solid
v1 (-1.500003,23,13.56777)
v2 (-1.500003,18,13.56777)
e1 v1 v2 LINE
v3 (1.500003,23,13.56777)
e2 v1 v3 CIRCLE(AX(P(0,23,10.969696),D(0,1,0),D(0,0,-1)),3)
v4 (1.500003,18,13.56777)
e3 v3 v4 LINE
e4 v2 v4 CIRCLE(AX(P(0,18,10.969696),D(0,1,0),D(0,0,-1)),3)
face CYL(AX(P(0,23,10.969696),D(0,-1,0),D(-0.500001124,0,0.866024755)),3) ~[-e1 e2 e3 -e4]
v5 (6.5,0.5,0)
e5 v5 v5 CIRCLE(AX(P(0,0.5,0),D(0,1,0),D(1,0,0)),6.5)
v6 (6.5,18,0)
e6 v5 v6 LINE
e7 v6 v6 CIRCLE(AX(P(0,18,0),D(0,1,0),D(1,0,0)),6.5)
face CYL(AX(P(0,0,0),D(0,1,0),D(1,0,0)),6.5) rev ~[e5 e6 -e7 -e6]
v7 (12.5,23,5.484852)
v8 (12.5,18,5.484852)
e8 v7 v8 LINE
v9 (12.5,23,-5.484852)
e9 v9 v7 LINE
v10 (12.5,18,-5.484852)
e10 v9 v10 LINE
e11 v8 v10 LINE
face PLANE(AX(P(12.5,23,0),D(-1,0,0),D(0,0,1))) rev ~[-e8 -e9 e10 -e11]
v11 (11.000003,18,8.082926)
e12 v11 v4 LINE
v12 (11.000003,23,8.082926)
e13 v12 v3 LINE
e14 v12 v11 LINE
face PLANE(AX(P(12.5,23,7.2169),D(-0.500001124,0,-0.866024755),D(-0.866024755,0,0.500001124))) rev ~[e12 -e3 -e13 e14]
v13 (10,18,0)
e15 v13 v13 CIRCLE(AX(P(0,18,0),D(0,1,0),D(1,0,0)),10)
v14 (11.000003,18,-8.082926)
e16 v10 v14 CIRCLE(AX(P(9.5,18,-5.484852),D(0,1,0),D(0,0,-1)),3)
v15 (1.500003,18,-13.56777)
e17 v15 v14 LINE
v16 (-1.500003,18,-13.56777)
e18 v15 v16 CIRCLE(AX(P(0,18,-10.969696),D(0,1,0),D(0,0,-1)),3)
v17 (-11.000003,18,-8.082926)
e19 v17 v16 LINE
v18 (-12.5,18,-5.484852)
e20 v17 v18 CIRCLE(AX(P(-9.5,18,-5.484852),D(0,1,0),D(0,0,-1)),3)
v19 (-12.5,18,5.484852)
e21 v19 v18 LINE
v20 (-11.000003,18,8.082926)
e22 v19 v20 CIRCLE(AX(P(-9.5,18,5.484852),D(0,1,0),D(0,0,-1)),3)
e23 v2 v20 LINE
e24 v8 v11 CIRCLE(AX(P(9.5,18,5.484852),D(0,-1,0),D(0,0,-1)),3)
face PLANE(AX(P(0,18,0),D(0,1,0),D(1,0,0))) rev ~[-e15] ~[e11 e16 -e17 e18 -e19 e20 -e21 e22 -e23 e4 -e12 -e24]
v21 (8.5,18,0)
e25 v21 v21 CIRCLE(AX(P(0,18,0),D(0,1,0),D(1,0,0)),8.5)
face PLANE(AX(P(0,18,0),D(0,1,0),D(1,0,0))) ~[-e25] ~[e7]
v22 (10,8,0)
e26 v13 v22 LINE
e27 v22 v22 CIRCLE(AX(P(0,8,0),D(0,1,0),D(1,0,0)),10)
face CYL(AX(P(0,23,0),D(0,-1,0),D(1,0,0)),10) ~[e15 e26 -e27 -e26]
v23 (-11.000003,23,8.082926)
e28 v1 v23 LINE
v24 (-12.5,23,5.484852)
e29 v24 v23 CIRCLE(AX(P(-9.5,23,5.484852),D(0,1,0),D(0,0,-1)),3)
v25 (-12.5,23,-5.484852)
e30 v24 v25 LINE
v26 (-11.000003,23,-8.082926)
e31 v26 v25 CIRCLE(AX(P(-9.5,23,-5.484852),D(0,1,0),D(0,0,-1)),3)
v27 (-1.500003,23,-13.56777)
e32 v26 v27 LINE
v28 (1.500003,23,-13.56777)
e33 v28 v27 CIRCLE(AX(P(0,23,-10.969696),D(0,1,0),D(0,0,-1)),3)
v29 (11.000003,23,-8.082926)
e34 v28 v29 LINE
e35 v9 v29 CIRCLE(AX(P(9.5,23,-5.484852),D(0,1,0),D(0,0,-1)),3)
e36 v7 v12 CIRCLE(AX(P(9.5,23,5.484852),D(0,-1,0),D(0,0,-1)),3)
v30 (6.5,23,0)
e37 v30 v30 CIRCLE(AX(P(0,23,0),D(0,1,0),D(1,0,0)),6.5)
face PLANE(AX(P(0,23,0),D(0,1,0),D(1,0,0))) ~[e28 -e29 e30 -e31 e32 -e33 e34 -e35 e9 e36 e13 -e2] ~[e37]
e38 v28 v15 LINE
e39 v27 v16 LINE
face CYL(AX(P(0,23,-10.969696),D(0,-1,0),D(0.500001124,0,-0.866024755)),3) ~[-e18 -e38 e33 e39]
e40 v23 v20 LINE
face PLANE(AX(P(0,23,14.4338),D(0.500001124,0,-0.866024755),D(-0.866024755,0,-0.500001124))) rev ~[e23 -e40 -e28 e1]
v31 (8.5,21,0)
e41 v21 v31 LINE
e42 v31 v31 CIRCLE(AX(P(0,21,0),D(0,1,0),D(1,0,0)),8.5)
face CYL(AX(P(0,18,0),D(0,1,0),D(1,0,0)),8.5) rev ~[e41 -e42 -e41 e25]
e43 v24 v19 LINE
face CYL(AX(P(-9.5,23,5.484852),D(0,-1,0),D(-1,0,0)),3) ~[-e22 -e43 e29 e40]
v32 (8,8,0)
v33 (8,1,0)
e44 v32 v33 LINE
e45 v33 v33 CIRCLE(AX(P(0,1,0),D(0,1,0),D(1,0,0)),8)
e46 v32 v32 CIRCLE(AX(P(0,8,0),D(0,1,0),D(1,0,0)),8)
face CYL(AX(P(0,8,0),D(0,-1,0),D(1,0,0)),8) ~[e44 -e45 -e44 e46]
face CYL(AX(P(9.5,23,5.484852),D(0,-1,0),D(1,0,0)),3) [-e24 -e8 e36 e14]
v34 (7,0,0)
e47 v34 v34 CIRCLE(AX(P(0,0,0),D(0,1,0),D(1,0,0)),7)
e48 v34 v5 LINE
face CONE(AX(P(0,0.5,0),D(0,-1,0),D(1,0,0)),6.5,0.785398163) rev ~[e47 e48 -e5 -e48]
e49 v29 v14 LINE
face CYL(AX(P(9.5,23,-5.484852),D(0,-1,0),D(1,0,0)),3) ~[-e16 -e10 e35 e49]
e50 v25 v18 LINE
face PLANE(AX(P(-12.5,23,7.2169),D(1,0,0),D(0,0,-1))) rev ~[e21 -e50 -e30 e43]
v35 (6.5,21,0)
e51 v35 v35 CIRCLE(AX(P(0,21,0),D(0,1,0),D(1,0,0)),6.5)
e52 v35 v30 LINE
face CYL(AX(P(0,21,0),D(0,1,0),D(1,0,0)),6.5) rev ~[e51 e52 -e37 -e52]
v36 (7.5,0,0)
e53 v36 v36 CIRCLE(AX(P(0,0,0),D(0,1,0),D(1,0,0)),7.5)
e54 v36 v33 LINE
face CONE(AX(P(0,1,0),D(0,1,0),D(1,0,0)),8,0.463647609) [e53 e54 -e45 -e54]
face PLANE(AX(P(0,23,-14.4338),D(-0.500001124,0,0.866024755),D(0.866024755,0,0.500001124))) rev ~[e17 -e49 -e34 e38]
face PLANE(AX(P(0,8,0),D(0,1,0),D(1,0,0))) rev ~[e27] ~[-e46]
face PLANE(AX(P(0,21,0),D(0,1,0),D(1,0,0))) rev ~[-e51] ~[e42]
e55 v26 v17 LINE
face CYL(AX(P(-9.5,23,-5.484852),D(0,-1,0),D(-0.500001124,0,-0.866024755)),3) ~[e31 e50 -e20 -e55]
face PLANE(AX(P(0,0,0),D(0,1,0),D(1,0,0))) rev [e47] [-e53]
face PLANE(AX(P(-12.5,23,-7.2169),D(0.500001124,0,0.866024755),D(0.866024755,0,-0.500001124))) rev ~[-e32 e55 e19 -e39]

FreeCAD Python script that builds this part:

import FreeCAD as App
import Part
import Sketcher

V = App.Vector
Q = App.Units.Quantity


def edges_at(feature, points):
    """Names of the edges that pass closest to the given points."""
    edges = feature.Shape.Edges
    near = lambda p: min(range(len(edges)), key=lambda i: edges[i].distToShape(Part.Vertex(*p))[0])
    return sorted({f"Edge{near(p) + 1}" for p in points})

doc = App.newDocument("Part")
body = doc.addObject("PartDesign::Body", "Body")

sketch1 = body.newObject("Sketcher::SketchObject", "Sketch")
sketch1.AttachmentSupport = (doc.getObject("XY_Plane"), [""])
sketch1.MapMode = "FlatFace"
sketch1.addGeometry(Part.LineSegment(V(6.5, 18, 0), V(6.5, 0, 0)), False)
sketch1.addGeometry(Part.LineSegment(V(6.5, 0, 0), V(8, 0, 0)), False)
sketch1.addGeometry(Part.LineSegment(V(8, 0, 0), V(8, 8, 0)), False)
sketch1.addGeometry(Part.LineSegment(V(8, 8, 0), V(10, 8, 0)), False)
sketch1.addGeometry(Part.LineSegment(V(10, 8, 0), V(10, 23, 0)), False)
sketch1.addGeometry(Part.LineSegment(V(10, 23, 0), V(6.5, 23, 0)), False)
sketch1.addGeometry(Part.LineSegment(V(6.5, 23, 0), V(6.5, 21, 0)), False)
sketch1.addGeometry(Part.LineSegment(V(6.5, 21, 0), V(8.5, 21, 0)), False)
sketch1.addGeometry(Part.LineSegment(V(8.5, 21, 0), V(8.5, 18, 0)), False)
sketch1.addGeometry(Part.LineSegment(V(8.5, 18, 0), V(6.5, 18, 0)), False)
sketch1.addConstraint(Sketcher.Constraint("Coincident", 0, 2, 1, 1))
sketch1.addConstraint(Sketcher.Constraint("Coincident", 1, 2, 2, 1))
sketch1.addConstraint(Sketcher.Constraint("Coincident", 2, 2, 3, 1))
sketch1.addConstraint(Sketcher.Constraint("Coincident", 3, 2, 4, 1))
sketch1.addConstraint(Sketcher.Constraint("Coincident", 4, 2, 5, 1))
sketch1.addConstraint(Sketcher.Constraint("Coincident", 5, 2, 6, 1))
sketch1.addConstraint(Sketcher.Constraint("Coincident", 6, 2, 7, 1))
sketch1.addConstraint(Sketcher.Constraint("Coincident", 7, 2, 8, 1))
sketch1.addConstraint(Sketcher.Constraint("Coincident", 8, 2, 9, 1))
sketch1.addConstraint(Sketcher.Constraint("Coincident", 9, 2, 0, 1))
sketch1.addConstraint(Sketcher.Constraint("Vertical", 0))
sketch1.addConstraint(Sketcher.Constraint("Horizontal", 1))
sketch1.addConstraint(Sketcher.Constraint("Vertical", 2))
sketch1.addConstraint(Sketcher.Constraint("Horizontal", 3))
sketch1.addConstraint(Sketcher.Constraint("Vertical", 4))
sketch1.addConstraint(Sketcher.Constraint("Horizontal", 5))
sketch1.addConstraint(Sketcher.Constraint("Vertical", 6))
sketch1.addConstraint(Sketcher.Constraint("Horizontal", 7))
sketch1.addConstraint(Sketcher.Constraint("Vertical", 8))
sketch1.addConstraint(Sketcher.Constraint("Horizontal", 9))
sketch1.addConstraint(Sketcher.Constraint("PointOnObject", 0, 2, -1))
sketch1.addConstraint(Sketcher.Constraint("Vertical", 0, 2, 5, 2))
sketch1.addConstraint(Sketcher.Constraint("Equal", 3, 7))
sketch1.addConstraint(Sketcher.Constraint("Equal", 9, 6))
sketch1.addConstraint(Sketcher.Constraint("DistanceX", 3, 1, 3, 2, Q("2 mm")))
sketch1.addConstraint(Sketcher.Constraint("DistanceY", 2, 1, 2, 2, Q("8 mm")))
sketch1.addConstraint(Sketcher.Constraint("DistanceY", 8, 2, 8, 1, Q("3 mm")))
sketch1.addConstraint(Sketcher.Constraint("DistanceX", -1, 1, 1, 2, Q("8 mm")))
sketch1.addConstraint(Sketcher.Constraint("DistanceY", -1, 1, 4, 2, Q("23 mm")))
sketch1.addConstraint(Sketcher.Constraint("DistanceX", 1, 1, 1, 2, Q("1.5 mm")))
revolution = body.newObject("PartDesign::Revolution", "Revolution")
revolution.Profile = sketch1
revolution.ReferenceAxis = (sketch1, ["V_Axis"])
revolution.Angle = 360

sketch2 = body.newObject("Sketcher::SketchObject", "Sketch001")
sketch2.AttachmentSupport = (doc.getObject("XZ_Plane"), [""])
sketch2.MapMode = "FlatFace"
sketch2.AttachmentOffset = App.Placement(V(0, 0, -23), App.Rotation())
sketch2.addGeometry(Part.LineSegment(V(12, 7, 0), V(12, -7, 0)), False)
sketch2.addGeometry(Part.LineSegment(V(12, -7, 0), V(0, -14, 0)), False)
sketch2.addGeometry(Part.LineSegment(V(0, -14, 0), V(-12, -7, 0)), False)
sketch2.addGeometry(Part.LineSegment(V(-12, -7, 0), V(-12, 7, 0)), False)
sketch2.addGeometry(Part.LineSegment(V(-12, 7, 0), V(0, 14, 0)), False)
sketch2.addGeometry(Part.LineSegment(V(0, 14, 0), V(12, 7, 0)), False)
sketch2.addGeometry(Part.Circle(V(0, 0, 0), V(0, 0, 1), 10), False)
sketch2.addConstraint(Sketcher.Constraint("Coincident", 0, 2, 1, 1))
sketch2.addConstraint(Sketcher.Constraint("Coincident", 1, 2, 2, 1))
sketch2.addConstraint(Sketcher.Constraint("Coincident", 2, 2, 3, 1))
sketch2.addConstraint(Sketcher.Constraint("Coincident", 3, 2, 4, 1))
sketch2.addConstraint(Sketcher.Constraint("Coincident", 4, 2, 5, 1))
sketch2.addConstraint(Sketcher.Constraint("Coincident", 5, 2, 0, 1))
sketch2.addConstraint(Sketcher.Constraint("Vertical", 0))
sketch2.addConstraint(Sketcher.Constraint("Vertical", 3))
sketch2.addConstraint(Sketcher.Constraint("Coincident", 6, 3, -1, 1))
sketch2.addConstraint(Sketcher.Constraint("Symmetric", 0, 2, 3, 2, -1, 1))
sketch2.addConstraint(Sketcher.Constraint("Symmetric", 1, 2, 4, 2, -1, 1))
sketch2.addConstraint(Sketcher.Constraint("PointOnObject", 1, 2, -2))
sketch2.addConstraint(Sketcher.Constraint("Parallel", 2, 5))
sketch2.addConstraint(Sketcher.Constraint("Horizontal", 0, 2, 2, 2))
sketch2.addConstraint(Sketcher.Constraint("Diameter", 6, Q("20 mm")))
sketch2.addConstraint(Sketcher.Constraint("DistanceX", 2, 2, 0, 2, Q("25 mm")))
sketch2.addConstraint(Sketcher.Constraint("Angle", 1, Q("-150 deg")))
sketch2.addConstraint(Sketcher.Constraint("DistanceY", 0, 2, 0, 1, Q("14.4338 mm")))
pad1 = body.newObject("PartDesign::Pad", "Pad")
pad1.Profile = sketch2
pad1.Length = 5
doc.recompute()

fillet = body.newObject("PartDesign::Fillet", "Fillet")
fillet.Base = (pad1, edges_at(pad1, [
    (0, 20.5, 14.434),
    (-12.5, 20.5, 7.217),
    (-12.5, 20.5, -7.217),
    (0, 20.5, -14.434),
    (12.5, 20.5, -7.217),
    (12.5, 20.5, 7.217),
]))
fillet.Radius = 3
doc.recompute()

chamfer = body.newObject("PartDesign::Chamfer", "Chamfer")
chamfer.Base = (fillet, edges_at(fillet, [(-6.5, 0, 0)]))
chamfer.Size = 0.5
doc.recompute()

chamfer2 = body.newObject("PartDesign::Chamfer", "Chamfer001")
chamfer2.Base = (chamfer, edges_at(chamfer, [(-8, 0, 0)]))
chamfer2.ChamferType = "Two distances"
chamfer2.Size = 0.5
chamfer2.Size2 = 1

doc.recompute()
